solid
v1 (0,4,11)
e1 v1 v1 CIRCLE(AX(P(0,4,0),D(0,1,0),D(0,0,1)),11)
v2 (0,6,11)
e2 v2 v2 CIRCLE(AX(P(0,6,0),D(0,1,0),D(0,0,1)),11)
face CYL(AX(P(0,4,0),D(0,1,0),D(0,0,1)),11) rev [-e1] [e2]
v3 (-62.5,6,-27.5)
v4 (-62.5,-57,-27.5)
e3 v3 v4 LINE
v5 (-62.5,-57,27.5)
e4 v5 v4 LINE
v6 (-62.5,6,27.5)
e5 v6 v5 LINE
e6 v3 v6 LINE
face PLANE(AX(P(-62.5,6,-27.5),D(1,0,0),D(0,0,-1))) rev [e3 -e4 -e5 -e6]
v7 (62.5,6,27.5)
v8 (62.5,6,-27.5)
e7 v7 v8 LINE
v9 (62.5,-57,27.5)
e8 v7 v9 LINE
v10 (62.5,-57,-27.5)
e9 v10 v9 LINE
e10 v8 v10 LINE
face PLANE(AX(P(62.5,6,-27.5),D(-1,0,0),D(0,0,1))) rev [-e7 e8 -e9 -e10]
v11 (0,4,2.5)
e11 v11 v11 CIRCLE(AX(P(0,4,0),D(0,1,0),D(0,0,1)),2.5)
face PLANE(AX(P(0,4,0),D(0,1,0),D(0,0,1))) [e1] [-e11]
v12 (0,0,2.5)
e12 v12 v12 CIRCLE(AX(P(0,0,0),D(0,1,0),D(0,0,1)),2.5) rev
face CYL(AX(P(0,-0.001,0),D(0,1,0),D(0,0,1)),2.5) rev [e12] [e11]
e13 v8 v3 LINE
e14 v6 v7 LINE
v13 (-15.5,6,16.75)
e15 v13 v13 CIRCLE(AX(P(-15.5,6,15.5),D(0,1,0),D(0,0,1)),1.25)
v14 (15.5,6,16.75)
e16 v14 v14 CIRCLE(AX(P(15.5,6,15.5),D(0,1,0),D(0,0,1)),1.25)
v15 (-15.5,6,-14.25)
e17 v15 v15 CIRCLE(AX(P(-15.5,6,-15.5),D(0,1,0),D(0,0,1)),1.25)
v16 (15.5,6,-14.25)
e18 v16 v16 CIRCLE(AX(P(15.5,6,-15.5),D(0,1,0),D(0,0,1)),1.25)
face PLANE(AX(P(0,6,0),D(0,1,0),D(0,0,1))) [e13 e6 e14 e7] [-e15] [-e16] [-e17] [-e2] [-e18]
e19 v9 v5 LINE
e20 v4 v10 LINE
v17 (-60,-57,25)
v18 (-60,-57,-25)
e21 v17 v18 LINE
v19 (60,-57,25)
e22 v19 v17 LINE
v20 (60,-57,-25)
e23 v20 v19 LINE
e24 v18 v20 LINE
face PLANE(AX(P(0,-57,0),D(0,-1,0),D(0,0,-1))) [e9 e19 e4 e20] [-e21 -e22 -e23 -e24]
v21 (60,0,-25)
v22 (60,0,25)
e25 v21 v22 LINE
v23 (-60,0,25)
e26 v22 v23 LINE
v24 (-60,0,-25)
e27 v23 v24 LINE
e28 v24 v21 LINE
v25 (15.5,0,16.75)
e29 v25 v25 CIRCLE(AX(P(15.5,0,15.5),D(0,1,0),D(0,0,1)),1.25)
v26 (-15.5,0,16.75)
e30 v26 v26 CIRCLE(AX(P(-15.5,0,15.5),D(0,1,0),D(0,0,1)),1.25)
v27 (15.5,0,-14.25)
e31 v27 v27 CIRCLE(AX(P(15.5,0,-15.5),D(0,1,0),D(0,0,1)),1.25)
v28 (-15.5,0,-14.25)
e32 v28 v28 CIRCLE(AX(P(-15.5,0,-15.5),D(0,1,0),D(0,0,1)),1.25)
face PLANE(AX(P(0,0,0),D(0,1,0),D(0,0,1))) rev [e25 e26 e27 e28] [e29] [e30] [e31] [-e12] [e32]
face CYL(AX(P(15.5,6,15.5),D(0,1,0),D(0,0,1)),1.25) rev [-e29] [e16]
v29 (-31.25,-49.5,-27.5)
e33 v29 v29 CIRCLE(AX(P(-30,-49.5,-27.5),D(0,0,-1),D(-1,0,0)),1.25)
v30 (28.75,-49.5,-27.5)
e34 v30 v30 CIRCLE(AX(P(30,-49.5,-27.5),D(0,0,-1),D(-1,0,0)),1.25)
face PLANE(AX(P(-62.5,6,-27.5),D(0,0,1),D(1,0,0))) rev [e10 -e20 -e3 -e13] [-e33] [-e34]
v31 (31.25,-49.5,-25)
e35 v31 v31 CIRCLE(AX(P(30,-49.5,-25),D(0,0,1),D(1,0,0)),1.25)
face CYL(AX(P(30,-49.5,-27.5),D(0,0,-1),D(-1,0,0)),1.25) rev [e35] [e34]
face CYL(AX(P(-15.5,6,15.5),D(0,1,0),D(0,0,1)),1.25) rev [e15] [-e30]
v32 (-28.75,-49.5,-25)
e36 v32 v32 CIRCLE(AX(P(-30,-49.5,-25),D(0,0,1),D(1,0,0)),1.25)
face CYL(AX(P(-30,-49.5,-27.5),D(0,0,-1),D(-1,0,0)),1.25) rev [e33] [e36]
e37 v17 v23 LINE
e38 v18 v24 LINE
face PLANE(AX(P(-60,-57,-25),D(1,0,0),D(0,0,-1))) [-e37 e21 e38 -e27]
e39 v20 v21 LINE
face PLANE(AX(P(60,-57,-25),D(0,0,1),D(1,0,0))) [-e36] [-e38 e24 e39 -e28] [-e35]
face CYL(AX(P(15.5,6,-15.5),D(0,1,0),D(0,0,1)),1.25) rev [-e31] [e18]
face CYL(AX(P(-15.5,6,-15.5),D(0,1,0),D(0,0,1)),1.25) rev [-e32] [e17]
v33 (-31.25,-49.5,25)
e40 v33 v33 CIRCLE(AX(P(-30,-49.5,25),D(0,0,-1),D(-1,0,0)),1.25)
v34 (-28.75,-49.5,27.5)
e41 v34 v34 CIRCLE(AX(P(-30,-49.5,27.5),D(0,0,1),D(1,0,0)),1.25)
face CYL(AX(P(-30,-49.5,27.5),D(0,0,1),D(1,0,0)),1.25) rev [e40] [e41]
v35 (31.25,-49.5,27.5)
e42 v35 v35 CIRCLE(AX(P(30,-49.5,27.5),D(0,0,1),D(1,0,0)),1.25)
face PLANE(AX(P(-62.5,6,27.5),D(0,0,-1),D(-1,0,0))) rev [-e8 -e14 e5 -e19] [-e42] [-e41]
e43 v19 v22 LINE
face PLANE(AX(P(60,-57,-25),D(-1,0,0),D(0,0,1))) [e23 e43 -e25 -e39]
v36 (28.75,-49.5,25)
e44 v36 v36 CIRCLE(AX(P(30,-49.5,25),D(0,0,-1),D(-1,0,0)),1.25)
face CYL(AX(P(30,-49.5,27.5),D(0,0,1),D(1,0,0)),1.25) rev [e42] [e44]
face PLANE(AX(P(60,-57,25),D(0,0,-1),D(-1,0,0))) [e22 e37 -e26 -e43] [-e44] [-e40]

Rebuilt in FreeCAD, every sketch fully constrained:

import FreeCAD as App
import Part
import Sketcher
from FreeCAD import Vector


def add_polygon(sketch, points):
    """Adds a closed chain of lines whose ends are joined by coincident constraints."""
    first, n = sketch.GeometryCount, len(points)
    for a, b in zip(points, points[1:] + points[:1]):
        sketch.addGeometry(Part.LineSegment(App.Vector(*a, 0), App.Vector(*b, 0)), False)
    for i in range(n):
        sketch.addConstraint(Sketcher.Constraint("Coincident", first + i, 2, first + (i + 1) % n, 1))

doc = App.newDocument("Part")
body = doc.addObject("PartDesign::Body", "Body")

sketch1 = doc.addObject("Sketcher::SketchObject", "Sketch")
body.addObject(sketch1)
sketch1.AttachmentSupport = (doc.XZ_Plane, [""])
sketch1.MapMode = "FlatFace"
add_polygon(sketch1, [(-62, -28), (-62, 28), (62, 28), (62, -28)])
sketch1.addConstraint(Sketcher.Constraint("Vertical", 0))
sketch1.addConstraint(Sketcher.Constraint("Horizontal", 1))
sketch1.addConstraint(Sketcher.Constraint("Vertical", 2))
sketch1.addConstraint(Sketcher.Constraint("Horizontal", 3))
sketch1.addConstraint(Sketcher.Constraint("Symmetric", 0, 2, 2, 2, -1, 1))
sketch1.addConstraint(Sketcher.Constraint("DistanceX", 1, 1, 1, 2, 125.0))
sketch1.addConstraint(Sketcher.Constraint("DistanceY", 0, 1, 0, 2, 55.0))
pad1 = doc.addObject("PartDesign::Pad", "Pad")
body.addObject(pad1)
pad1.Profile = sketch1
pad1.Length = 6
pad1.Reversed = True

sketch2 = doc.addObject("Sketcher::SketchObject", "Sketch001")
body.addObject(sketch2)
sketch2.AttachmentSupport = (doc.XZ_Plane, [""])
sketch2.MapMode = "FlatFace"
sketch2.AttachmentOffset = App.Placement(Vector(0, 0, -6), App.Rotation())
sketch2.addGeometry(Part.Circle(Vector(0, 0, 0), Vector(0, 0, 1), 11), False)
sketch2.addConstraint(Sketcher.Constraint("Coincident", 0, 3, -1, 1))
sketch2.addConstraint(Sketcher.Constraint("Diameter", 0, 22.0))
pocket1 = doc.addObject("PartDesign::Pocket", "Pocket")
body.addObject(pocket1)
pocket1.Profile = sketch2
pocket1.Length = 2
pocket1.Reversed = True

sketch3 = doc.addObject("Sketcher::SketchObject", "Sketch002")
body.addObject(sketch3)
sketch3.AttachmentSupport = (doc.XZ_Plane, [""])
sketch3.MapMode = "FlatFace"
sketch3.AttachmentOffset = App.Placement(Vector(0, 0, -4), App.Rotation())
sketch3.addGeometry(Part.Circle(Vector(0, 0, 0), Vector(0, 0, 1), 2.5), False)
sketch3.addConstraint(Sketcher.Constraint("Coincident", 0, 3, -1, 1))
sketch3.addConstraint(Sketcher.Constraint("Diameter", 0, 5.0))
pocket2 = doc.addObject("PartDesign::Pocket", "Pocket001")
body.addObject(pocket2)
pocket2.Profile = sketch3
pocket2.Type = "UpToFirst"
pocket2.Reversed = True

sketch4 = doc.addObject("Sketcher::SketchObject", "Sketch003")
body.addObject(sketch4)
sketch4.AttachmentSupport = (doc.XZ_Plane, [""])
sketch4.MapMode = "FlatFace"
sketch4.AttachmentOffset = App.Placement(Vector(0, 0, -6), App.Rotation())
sketch4.addGeometry(Part.Circle(Vector(15.5, -15.5, 0), Vector(0, 0, 1), 1.2), False)
sketch4.addGeometry(Part.Circle(Vector(15.5, 15.5, 0), Vector(0, 0, 1), 1.2), False)
sketch4.addGeometry(Part.Circle(Vector(-15.5, 15.5, 0), Vector(0, 0, 1), 1.2), False)
sketch4.addGeometry(Part.Circle(Vector(-15.5, -15.5, 0), Vector(0, 0, 1), 1.2), False)
sketch4.addConstraint(Sketcher.Constraint("Equal", 0, 1))
sketch4.addConstraint(Sketcher.Constraint("Equal", 1, 2))
sketch4.addConstraint(Sketcher.Constraint("Equal", 2, 3))
sketch4.addConstraint(Sketcher.Constraint("Symmetric", 0, 3, 2, 3, -1, 1))
sketch4.addConstraint(Sketcher.Constraint("Symmetric", 1, 3, 3, 3, -1, 1))
sketch4.addConstraint(Sketcher.Constraint("Symmetric", 1, 3, 2, 3, -2))
sketch4.addConstraint(Sketcher.Constraint("Diameter", 0, 2.5))
sketch4.addConstraint(Sketcher.Constraint("DistanceY", 0, 3, 1, 3, 31.0))
sketch4.addConstraint(Sketcher.Constraint("DistanceX", 2, 3, 1, 3, 31.0))
doc.recompute()
hole = doc.addObject("PartDesign::Hole", "Hole")
body.addObject(hole)
hole.Profile = sketch4
hole.ThreadType = "None"
hole.Diameter = 2.5
hole.DepthType = "Dimension"
hole.Depth = 7.5
hole.DrillPoint = "Angled"
hole.DrillPointAngle = 118
hole.Reversed = True

sketch5 = doc.addObject("Sketcher::SketchObject", "Sketch004")
body.addObject(sketch5)
sketch5.AttachmentSupport = (doc.XZ_Plane, [""])
sketch5.MapMode = "FlatFace"
add_polygon(sketch5, [(-62, 28), (-62, -28), (62, -28), (62, 28)])
add_polygon(sketch5, [(60, -25), (-60, -25), (-60, 25), (60, 25)])
sketch5.addConstraint(Sketcher.Constraint("Vertical", 0))
sketch5.addConstraint(Sketcher.Constraint("Horizontal", 1))
sketch5.addConstraint(Sketcher.Constraint("Vertical", 2))
sketch5.addConstraint(Sketcher.Constraint("Horizontal", 3))
sketch5.addConstraint(Sketcher.Constraint("Horizontal", 4))
sketch5.addConstraint(Sketcher.Constraint("Vertical", 5))
sketch5.addConstraint(Sketcher.Constraint("Horizontal", 6))
sketch5.addConstraint(Sketcher.Constraint("Vertical", 7))
sketch5.addConstraint(Sketcher.Constraint("Symmetric", 0, 2, 2, 2, -1, 1))
sketch5.addConstraint(Sketcher.Constraint("Symmetric", 4, 2, 6, 2, -1, 1))
sketch5.addConstraint(Sketcher.Constraint("DistanceX", 1, 1, 1, 2, 125.0))
sketch5.addConstraint(Sketcher.Constraint("DistanceX", 4, 2, 4, 1, 120.0))
sketch5.addConstraint(Sketcher.Constraint("DistanceY", 0, 2, 0, 1, 55.0))
sketch5.addConstraint(Sketcher.Constraint("DistanceY", 5, 1, 5, 2, 50.0))
pad2 = doc.addObject("PartDesign::Pad", "Pad001")
body.addObject(pad2)
pad2.Profile = sketch5
pad2.Length = 57

sketch6 = doc.addObject("Sketcher::SketchObject", "Sketch005")
body.addObject(sketch6)
sketch6.AttachmentSupport = (doc.XY_Plane, [""])
sketch6.MapMode = "FlatFace"
sketch6.AttachmentOffset = App.Placement(Vector(0, 0, -27.5), App.Rotation())
sketch6.addGeometry(Part.Circle(Vector(-30, -49.5, 0), Vector(0, 0, 1), 1.2), False)
sketch6.addGeometry(Part.Circle(Vector(30, -49.5, 0), Vector(0, 0, 1), 1.2), False)
sketch6.addConstraint(Sketcher.Constraint("Equal", 0, 1))
sketch6.addConstraint(Sketcher.Constraint("Symmetric", 0, 3, 1, 3, -2))
sketch6.addConstraint(Sketcher.Constraint("Diameter", 0, 2.5))
sketch6.addConstraint(Sketcher.Constraint("DistanceX", 0, 3, -1, 1, 30.0))
sketch6.addConstraint(Sketcher.Constraint("DistanceY", 0, 3, -1, 1, 49.5))
doc.recompute()
hole2 = doc.addObject("PartDesign::Hole", "Hole001")
body.addObject(hole2)
hole2.Profile = sketch6
hole2.ThreadType = "None"
hole2.Diameter = 2.5
hole2.DepthType = "Dimension"
hole2.Depth = 2.5
hole2.DrillPoint = "Flat"
hole2.Reversed = True

sketch7 = doc.addObject("Sketcher::SketchObject", "Sketch006")
body.addObject(sketch7)
sketch7.AttachmentSupport = (doc.XY_Plane, [""])
sketch7.MapMode = "FlatFace"
sketch7.AttachmentOffset = App.Placement(Vector(0, 0, 27.5), App.Rotation())
sketch7.addGeometry(Part.Circle(Vector(30, -49.5, 0), Vector(0, 0, 1), 1.2), False)
sketch7.addGeometry(Part.Circle(Vector(-30, -49.5, 0), Vector(0, 0, 1), 1.2), False)
sketch7.addConstraint(Sketcher.Constraint("Equal", 0, 1))
sketch7.addConstraint(Sketcher.Constraint("Symmetric", 0, 3, 1, 3, -2))
sketch7.addConstraint(Sketcher.Constraint("Diameter", 0, 2.5))
sketch7.addConstraint(Sketcher.Constraint("DistanceX", -1, 1, 0, 3, 30.0))
sketch7.addConstraint(Sketcher.Constraint("DistanceY", 0, 3, -1, 1, 49.5))
doc.recompute()
hole3 = doc.addObject("PartDesign::Hole", "Hole002")
body.addObject(hole3)
hole3.Profile = sketch7
hole3.ThreadType = "None"
hole3.Diameter = 2.5
hole3.DepthType = "ThroughAll"

doc.recompute()
